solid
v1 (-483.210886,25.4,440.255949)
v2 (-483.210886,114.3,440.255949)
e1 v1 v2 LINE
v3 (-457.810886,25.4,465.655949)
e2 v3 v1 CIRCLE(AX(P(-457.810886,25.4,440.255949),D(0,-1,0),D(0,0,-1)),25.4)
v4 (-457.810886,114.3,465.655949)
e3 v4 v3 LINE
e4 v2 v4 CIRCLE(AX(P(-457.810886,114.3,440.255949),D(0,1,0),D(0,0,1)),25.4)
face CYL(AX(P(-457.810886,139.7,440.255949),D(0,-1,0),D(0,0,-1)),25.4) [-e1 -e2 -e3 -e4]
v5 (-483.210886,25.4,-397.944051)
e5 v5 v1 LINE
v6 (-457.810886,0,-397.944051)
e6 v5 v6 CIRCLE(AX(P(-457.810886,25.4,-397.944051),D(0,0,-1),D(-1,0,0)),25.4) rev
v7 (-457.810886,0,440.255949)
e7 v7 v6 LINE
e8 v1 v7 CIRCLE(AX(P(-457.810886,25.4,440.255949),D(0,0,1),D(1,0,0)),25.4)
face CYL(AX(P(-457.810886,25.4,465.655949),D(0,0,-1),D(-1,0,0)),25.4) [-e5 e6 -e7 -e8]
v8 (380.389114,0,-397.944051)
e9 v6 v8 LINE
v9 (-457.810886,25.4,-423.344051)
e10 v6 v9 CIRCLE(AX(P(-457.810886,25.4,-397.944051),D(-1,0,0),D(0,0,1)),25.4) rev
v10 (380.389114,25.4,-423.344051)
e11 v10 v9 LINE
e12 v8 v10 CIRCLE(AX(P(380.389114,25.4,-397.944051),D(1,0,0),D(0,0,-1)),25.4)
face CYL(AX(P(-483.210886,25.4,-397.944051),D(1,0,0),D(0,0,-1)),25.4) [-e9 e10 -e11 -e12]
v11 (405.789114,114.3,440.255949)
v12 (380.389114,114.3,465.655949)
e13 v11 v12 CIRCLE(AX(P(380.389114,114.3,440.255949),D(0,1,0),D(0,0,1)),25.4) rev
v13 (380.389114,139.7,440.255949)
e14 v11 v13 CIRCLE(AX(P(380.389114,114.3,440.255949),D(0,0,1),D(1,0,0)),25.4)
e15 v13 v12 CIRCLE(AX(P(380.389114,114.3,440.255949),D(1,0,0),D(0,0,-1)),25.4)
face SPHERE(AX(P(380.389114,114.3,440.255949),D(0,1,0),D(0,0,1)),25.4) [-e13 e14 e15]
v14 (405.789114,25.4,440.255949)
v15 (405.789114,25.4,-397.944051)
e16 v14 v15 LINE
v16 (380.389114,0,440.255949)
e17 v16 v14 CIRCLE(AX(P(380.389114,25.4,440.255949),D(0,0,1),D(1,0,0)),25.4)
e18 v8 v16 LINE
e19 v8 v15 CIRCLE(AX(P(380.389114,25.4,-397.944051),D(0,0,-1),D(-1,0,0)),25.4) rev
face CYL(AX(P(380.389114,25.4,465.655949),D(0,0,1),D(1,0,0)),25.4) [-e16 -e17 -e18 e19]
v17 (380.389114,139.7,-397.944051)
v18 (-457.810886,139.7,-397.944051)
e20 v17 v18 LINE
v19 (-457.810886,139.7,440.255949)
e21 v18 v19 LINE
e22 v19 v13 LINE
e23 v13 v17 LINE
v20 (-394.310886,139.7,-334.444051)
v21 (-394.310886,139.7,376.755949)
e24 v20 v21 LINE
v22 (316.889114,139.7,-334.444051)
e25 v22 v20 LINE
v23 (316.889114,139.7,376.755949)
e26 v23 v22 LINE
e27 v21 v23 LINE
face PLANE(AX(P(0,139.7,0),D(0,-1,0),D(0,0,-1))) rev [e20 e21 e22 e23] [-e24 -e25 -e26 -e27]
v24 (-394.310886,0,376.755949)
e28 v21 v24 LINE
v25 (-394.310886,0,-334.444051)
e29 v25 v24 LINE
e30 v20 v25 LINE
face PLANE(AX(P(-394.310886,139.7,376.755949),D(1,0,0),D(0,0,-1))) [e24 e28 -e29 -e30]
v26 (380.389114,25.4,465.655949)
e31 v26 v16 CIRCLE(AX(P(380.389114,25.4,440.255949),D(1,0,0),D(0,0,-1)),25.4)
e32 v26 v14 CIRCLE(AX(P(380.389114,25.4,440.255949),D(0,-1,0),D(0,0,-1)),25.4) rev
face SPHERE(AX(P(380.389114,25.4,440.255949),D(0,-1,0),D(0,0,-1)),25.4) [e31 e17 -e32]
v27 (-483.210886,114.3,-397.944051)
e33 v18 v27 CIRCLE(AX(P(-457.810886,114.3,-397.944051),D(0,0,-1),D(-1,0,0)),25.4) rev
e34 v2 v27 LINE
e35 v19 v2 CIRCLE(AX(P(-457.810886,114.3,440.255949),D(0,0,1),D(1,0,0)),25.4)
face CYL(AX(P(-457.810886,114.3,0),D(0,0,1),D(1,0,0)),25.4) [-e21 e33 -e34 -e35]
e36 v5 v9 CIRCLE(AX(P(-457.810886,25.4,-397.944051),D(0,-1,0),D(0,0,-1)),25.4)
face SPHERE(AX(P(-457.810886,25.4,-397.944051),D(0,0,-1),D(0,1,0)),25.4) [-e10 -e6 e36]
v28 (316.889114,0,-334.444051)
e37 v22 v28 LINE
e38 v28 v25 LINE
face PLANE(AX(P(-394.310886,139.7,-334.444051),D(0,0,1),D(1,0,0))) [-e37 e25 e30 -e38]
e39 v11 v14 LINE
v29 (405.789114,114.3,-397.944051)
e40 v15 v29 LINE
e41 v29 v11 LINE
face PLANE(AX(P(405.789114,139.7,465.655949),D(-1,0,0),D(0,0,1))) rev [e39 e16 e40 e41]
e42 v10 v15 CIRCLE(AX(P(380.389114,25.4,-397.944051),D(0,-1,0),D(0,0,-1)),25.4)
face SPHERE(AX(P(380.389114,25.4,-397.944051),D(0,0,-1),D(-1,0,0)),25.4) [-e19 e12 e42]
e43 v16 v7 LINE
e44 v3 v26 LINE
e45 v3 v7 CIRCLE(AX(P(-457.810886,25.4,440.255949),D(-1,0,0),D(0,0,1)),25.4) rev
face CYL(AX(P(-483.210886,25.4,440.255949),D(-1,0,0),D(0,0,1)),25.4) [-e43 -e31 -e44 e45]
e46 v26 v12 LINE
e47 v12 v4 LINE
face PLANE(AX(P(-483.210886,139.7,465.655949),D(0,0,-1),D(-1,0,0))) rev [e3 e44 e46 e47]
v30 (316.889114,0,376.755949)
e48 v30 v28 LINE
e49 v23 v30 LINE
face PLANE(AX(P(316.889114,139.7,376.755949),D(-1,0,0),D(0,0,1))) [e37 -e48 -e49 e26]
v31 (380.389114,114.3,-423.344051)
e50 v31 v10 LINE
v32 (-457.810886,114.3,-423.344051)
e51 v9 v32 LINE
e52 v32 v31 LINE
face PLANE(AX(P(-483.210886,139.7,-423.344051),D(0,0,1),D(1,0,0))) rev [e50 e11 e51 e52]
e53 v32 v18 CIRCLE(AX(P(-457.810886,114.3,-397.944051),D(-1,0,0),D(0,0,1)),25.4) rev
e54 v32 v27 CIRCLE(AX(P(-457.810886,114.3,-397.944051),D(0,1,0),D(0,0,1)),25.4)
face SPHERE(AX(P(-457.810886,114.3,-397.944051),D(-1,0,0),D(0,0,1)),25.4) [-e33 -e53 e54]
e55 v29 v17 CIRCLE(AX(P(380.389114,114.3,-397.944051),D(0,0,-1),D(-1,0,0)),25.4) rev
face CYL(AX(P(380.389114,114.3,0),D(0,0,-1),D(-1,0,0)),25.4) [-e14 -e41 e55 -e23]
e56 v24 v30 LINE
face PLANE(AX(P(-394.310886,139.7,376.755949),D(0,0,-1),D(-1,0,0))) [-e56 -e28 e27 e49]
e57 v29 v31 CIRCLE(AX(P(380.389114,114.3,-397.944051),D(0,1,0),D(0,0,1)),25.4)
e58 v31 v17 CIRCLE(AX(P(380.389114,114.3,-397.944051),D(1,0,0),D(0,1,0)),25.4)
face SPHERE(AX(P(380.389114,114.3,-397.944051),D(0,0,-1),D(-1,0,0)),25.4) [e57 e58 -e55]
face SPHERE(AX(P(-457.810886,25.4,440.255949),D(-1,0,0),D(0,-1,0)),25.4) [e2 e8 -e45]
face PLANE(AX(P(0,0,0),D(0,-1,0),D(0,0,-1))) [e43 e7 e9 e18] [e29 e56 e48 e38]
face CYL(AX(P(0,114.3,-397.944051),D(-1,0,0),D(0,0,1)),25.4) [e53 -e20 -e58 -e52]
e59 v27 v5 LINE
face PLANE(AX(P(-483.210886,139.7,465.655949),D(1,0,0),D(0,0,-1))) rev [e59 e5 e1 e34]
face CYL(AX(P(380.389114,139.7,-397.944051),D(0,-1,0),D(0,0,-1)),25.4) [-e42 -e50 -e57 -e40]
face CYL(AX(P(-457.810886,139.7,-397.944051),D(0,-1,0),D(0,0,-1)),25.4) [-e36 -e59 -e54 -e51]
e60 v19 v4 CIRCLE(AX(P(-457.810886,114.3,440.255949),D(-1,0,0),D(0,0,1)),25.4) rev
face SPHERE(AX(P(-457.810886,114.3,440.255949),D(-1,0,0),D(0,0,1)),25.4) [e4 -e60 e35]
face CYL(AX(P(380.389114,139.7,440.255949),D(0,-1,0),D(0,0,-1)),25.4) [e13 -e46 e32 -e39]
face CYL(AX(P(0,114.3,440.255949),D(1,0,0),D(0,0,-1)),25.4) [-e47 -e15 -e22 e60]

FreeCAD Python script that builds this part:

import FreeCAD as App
import Part
import Sketcher
from FreeCAD import Vector
Q = App.Units.Quantity


def edges_at(feature, points):
    """Names of the edges that pass closest to the given points."""
    edges = feature.Shape.Edges
    near = lambda p: min(range(len(edges)), key=lambda i: edges[i].distToShape(Part.Vertex(*p))[0])
    return sorted({f"Edge{near(p) + 1}" for p in points})


def add_polygon(sketch, points):
    """Adds a closed chain of lines whose ends are joined by coincident constraints."""
    first, n = sketch.GeometryCount, len(points)
    for a, b in zip(points, points[1:] + points[:1]):
        sketch.addGeometry(Part.LineSegment(App.Vector(*a, 0), App.Vector(*b, 0)), False)
    for i in range(n):
        sketch.addConstraint(Sketcher.Constraint("Coincident", first + i, 2, first + (i + 1) % n, 1))

doc = App.newDocument("Part")
params = doc.addObject("Spreadsheet::Sheet", "Params")
for row, (alias, value) in enumerate([
    ("sketch1_width", "35 in"),
    ("sketch1_width2", "28 in"),
    ("pad1_length", "5.5 in"),
    ("fillet_radius", "1 in"),
], start=1):
    params.set(f"A{row}", alias)
    params.set(f"B{row}", "=" + value)
    params.setAlias(f"B{row}", alias)

body = doc.addObject("PartDesign::Body", "Body")

# Sketch on XZ plane
sketch1 = body.newObject("Sketcher::SketchObject", "Sketch")
sketch1.AttachmentSupport = (doc.getObject("XZ_Plane"), [""])
sketch1.MapMode = "FlatFace"
add_polygon(sketch1, [(-483, -423), (-483, 466), (406, 466), (406, -423)])  # lines 0-3
add_polygon(sketch1, [(317, 377), (-394, 377), (-394, -334), (317, -334)])  # lines 4-7
sketch1.addConstraint(Sketcher.Constraint("Vertical", 0))
sketch1.addConstraint(Sketcher.Constraint("Horizontal", 1))
sketch1.addConstraint(Sketcher.Constraint("Vertical", 2))
sketch1.addConstraint(Sketcher.Constraint("Horizontal", 3))
sketch1.addConstraint(Sketcher.Constraint("Horizontal", 4))
sketch1.addConstraint(Sketcher.Constraint("Vertical", 5))
sketch1.addConstraint(Sketcher.Constraint("Horizontal", 6))
sketch1.addConstraint(Sketcher.Constraint("Vertical", 7))
sketch1.addConstraint(Sketcher.Constraint("Equal", 3, 0))
sketch1.addConstraint(Sketcher.Constraint("Equal", 6, 5))
sketch1.addConstraint(Sketcher.Constraint("DistanceX", 1, 1, 1, 2, Q("35 in")))
sketch1.addConstraint(Sketcher.Constraint("DistanceX", 4, 2, 4, 1, Q("28 in")))
sketch1.addConstraint(Sketcher.Constraint("DistanceX", 0, 2, 4, 2, Q("3.5 in")))
sketch1.addConstraint(Sketcher.Constraint("DistanceY", 4, 2, 0, 2, Q("3.5 in")))
sketch1.addConstraint(Sketcher.Constraint("DistanceY", -1, 1, 0, 2, Q("465.655949 mm")))
sketch1.addConstraint(Sketcher.Constraint("DistanceX", 0, 2, -1, 1, Q("483.210886 mm")))
sketch1.setExpression("Constraints[18]", "Params.sketch1_width")
sketch1.setExpression("Constraints[19]", "Params.sketch1_width2")
pad1 = body.newObject("PartDesign::Pad", "Pad")
pad1.Profile = sketch1
pad1.setExpression("Length", "Params.pad1_length")
pad1.Reversed = True
doc.recompute()

fillet = body.newObject("PartDesign::Fillet", "Fillet")
fillet.Base = (pad1, edges_at(pad1, [
    (-483.211, 139.7, 21.156),
    (-38.711, 139.7, 465.656),
    (405.789, 139.7, 21.156),
    (-38.711, 0, 465.656),
    (-483.211, 0, 21.156),
    (-38.711, 0, -423.344),
    (405.789, 0, 21.156),
    (405.789, 69.85, 465.656),
    (-483.211, 69.85, 465.656),
    (-483.211, 69.85, -423.344),
    (405.789, 69.85, -423.344),
    (-38.711, 139.7, -423.344),
]))
fillet.setExpression("Radius", "Params.fillet_radius")

doc.recompute()
